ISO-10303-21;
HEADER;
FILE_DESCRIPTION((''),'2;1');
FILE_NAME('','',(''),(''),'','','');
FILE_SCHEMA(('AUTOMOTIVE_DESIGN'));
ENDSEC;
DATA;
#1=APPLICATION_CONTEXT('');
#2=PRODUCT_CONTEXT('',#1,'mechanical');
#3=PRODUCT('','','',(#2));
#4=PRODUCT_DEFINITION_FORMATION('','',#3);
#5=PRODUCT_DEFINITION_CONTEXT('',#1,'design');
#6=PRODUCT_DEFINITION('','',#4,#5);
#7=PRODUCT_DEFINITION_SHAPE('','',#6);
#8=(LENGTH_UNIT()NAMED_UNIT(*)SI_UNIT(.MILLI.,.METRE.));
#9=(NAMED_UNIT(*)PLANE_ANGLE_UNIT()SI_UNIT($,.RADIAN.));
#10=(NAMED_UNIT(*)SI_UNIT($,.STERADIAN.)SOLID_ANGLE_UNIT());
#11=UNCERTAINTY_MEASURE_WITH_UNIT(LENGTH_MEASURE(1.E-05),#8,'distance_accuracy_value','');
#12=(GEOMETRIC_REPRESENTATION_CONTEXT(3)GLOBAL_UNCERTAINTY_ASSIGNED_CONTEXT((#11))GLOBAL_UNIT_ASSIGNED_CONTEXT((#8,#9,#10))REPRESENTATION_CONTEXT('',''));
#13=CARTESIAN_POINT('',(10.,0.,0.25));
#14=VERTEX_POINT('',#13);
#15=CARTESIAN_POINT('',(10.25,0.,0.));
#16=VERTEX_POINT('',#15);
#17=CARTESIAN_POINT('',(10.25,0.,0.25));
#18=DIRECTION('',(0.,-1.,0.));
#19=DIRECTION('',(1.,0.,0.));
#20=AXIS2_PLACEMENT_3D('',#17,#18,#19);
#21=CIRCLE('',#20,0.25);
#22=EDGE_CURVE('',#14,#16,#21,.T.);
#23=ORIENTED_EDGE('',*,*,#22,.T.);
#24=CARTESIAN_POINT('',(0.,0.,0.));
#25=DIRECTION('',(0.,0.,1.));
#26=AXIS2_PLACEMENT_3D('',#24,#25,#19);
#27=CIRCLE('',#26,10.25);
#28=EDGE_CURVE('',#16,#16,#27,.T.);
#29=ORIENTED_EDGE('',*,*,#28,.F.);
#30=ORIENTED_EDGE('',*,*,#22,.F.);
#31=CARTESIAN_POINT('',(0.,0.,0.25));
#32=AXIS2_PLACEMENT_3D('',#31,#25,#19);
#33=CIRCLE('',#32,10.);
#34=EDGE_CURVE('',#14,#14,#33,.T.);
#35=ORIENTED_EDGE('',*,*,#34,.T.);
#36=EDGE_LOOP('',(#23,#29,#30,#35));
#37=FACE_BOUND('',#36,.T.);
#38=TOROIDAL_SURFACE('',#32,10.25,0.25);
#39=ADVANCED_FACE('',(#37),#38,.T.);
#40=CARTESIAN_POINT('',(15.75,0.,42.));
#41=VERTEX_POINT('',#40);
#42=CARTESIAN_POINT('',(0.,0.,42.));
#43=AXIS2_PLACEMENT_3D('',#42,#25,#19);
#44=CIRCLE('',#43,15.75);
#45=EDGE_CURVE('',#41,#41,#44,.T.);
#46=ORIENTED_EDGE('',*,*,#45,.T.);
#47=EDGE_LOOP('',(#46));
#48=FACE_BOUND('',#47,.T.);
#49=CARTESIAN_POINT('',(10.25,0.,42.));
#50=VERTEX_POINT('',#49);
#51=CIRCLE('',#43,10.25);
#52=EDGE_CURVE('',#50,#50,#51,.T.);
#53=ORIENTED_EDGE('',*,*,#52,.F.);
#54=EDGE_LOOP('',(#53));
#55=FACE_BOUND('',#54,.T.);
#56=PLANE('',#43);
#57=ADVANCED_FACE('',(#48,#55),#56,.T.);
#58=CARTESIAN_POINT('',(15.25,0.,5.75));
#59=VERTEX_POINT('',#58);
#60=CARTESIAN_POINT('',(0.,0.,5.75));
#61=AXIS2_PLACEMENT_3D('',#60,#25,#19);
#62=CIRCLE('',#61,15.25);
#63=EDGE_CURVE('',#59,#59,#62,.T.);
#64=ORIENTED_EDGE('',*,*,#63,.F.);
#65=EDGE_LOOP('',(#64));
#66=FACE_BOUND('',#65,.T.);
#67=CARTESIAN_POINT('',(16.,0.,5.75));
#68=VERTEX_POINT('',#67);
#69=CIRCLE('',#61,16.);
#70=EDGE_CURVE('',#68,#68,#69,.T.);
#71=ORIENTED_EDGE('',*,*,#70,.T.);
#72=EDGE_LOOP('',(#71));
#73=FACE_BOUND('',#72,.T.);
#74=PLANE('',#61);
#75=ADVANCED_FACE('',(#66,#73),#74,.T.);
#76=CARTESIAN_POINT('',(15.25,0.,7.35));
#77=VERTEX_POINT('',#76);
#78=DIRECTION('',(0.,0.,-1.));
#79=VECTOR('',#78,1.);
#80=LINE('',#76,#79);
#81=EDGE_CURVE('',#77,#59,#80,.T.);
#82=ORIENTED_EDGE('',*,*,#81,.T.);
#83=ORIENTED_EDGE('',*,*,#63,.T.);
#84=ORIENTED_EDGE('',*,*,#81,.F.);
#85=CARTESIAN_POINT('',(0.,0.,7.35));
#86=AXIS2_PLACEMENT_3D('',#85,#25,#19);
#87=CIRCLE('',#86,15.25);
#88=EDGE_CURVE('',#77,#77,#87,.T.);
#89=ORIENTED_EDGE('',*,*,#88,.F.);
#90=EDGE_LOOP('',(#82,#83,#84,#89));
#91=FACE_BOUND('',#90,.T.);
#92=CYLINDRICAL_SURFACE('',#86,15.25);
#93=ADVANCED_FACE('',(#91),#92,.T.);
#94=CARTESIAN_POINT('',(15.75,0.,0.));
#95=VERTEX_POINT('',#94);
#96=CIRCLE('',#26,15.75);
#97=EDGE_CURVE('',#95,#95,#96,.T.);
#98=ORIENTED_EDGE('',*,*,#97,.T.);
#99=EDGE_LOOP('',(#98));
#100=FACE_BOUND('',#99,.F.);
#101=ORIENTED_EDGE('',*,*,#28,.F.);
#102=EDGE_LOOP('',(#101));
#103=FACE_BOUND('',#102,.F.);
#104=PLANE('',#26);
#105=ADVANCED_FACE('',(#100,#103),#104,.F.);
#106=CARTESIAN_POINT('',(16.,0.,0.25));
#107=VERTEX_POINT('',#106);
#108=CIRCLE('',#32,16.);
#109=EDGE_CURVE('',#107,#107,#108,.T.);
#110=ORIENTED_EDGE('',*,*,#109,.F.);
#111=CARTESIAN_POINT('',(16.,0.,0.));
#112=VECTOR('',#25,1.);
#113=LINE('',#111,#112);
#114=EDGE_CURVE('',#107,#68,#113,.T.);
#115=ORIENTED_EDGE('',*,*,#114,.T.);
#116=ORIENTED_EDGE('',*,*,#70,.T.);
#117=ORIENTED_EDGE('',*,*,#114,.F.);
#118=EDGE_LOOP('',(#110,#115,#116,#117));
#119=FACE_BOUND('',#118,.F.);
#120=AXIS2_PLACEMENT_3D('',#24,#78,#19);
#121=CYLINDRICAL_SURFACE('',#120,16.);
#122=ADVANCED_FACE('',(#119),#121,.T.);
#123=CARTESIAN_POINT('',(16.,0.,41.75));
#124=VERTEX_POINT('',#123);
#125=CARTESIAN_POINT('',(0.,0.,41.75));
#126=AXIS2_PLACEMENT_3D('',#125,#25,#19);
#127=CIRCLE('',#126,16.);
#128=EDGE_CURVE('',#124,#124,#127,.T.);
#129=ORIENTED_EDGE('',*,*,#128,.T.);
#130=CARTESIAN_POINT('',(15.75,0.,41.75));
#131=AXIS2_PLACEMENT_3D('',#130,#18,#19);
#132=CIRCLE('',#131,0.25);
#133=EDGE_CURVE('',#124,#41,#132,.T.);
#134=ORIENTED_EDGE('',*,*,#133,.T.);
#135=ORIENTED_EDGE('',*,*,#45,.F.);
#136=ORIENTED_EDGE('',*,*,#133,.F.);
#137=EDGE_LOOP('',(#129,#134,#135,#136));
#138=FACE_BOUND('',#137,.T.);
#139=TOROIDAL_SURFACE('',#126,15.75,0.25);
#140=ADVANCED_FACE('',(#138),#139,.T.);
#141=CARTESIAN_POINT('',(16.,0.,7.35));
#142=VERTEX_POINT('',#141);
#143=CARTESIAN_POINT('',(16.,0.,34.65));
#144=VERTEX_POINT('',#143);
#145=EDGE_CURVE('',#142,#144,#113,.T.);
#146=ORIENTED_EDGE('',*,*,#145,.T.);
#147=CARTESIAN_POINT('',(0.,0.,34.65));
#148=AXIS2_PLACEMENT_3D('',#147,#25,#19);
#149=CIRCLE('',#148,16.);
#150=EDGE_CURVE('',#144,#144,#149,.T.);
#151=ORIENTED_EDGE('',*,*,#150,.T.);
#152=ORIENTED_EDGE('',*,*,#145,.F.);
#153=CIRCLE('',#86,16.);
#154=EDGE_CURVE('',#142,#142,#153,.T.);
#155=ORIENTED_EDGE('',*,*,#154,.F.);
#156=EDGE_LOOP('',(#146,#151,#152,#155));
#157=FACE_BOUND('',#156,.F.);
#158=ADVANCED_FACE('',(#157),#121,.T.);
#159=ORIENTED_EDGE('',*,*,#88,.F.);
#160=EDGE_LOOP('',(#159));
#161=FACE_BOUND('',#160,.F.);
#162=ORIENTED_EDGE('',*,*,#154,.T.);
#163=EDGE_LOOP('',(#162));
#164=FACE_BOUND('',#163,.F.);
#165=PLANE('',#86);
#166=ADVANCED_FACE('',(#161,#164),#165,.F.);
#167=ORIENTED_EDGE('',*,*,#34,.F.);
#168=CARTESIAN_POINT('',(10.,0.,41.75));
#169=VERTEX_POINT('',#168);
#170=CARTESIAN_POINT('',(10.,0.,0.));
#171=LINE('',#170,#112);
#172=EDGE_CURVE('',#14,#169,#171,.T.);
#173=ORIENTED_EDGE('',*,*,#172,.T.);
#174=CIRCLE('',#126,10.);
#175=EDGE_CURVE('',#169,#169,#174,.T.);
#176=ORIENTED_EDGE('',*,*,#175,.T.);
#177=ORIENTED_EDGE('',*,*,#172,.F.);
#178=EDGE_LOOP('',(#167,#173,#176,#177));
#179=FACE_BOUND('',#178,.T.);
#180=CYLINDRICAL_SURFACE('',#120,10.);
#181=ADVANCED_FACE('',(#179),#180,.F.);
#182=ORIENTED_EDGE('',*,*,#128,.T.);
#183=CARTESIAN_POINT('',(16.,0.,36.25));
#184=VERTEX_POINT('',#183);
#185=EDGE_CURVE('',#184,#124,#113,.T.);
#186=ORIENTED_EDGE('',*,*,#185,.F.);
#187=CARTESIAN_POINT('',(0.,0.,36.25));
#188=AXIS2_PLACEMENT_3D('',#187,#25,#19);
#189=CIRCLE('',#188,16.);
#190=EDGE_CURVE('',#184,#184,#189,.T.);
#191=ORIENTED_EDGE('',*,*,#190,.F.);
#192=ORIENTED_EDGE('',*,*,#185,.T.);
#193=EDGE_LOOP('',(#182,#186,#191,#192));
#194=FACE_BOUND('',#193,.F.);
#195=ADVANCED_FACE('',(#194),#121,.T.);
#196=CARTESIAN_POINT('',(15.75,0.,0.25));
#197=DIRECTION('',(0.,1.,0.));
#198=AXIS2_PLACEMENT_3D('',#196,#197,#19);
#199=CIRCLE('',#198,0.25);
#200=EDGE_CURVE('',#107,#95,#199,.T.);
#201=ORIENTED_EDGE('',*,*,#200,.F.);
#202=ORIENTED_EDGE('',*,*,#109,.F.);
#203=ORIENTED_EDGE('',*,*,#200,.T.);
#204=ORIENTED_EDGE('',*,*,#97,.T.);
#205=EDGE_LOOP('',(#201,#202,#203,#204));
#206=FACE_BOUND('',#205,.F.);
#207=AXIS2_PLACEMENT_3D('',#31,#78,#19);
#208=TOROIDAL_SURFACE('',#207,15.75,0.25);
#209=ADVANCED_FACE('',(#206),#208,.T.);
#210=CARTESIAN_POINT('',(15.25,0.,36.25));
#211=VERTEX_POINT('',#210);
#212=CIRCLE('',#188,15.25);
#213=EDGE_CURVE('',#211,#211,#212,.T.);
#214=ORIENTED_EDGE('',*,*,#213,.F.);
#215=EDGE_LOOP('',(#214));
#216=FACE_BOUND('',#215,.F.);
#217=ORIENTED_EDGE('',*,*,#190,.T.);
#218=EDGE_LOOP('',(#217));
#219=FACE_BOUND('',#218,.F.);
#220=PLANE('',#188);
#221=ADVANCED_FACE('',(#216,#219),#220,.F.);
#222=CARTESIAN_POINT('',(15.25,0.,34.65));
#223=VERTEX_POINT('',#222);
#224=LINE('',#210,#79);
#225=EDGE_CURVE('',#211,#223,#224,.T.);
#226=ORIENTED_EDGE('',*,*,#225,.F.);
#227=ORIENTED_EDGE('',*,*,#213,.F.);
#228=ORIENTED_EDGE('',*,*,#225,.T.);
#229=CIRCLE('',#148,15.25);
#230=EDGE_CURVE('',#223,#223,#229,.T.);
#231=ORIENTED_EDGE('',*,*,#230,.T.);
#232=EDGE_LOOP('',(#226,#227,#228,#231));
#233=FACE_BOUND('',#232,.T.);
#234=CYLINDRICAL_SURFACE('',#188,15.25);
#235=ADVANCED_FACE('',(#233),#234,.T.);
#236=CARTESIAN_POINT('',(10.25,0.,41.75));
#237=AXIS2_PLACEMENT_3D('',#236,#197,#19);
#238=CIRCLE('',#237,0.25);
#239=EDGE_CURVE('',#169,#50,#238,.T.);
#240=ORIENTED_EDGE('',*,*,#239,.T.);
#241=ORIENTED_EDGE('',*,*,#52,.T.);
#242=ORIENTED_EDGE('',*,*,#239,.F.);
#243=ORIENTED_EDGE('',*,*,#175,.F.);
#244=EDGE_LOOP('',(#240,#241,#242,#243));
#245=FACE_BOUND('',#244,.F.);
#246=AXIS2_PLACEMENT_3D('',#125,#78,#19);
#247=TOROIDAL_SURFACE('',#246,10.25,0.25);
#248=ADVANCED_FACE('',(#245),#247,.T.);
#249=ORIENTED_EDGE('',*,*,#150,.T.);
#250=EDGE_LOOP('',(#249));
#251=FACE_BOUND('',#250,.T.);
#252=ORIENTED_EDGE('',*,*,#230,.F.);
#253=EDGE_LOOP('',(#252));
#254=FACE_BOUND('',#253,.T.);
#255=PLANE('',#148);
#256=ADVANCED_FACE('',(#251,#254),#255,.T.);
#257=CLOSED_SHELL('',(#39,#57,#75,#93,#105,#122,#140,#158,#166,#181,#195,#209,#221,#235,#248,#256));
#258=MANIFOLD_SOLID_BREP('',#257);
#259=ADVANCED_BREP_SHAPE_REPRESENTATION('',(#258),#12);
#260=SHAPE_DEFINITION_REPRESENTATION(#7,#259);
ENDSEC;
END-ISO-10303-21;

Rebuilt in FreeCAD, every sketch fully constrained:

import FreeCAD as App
import Part
import Sketcher

V = App.Vector
Q = App.Units.Quantity


def edges_at(feature, points):
    """Names of the edges that pass closest to the given points."""
    edges = feature.Shape.Edges
    near = lambda p: min(range(len(edges)), key=lambda i: edges[i].distToShape(Part.Vertex(*p))[0])
    return sorted({f"Edge{near(p) + 1}" for p in points})

doc = App.newDocument("Part")
body = doc.addObject("PartDesign::Body", "Body")

sketch1 = doc.addObject("Sketcher::SketchObject", "Sketch")
body.addObject(sketch1)
sketch1.AttachmentSupport = (doc.XY_Plane, [""])
sketch1.MapMode = "FlatFace"
sketch1.addGeometry(Part.Circle(V(0, 0, 0), V(0, 0, 1), 16), False)
sketch1.addGeometry(Part.Circle(V(0, 0, 0), V(0, 0, 1), 10), False)
sketch1.addConstraint(Sketcher.Constraint("Coincident", 0, 3, -1, 1))
sketch1.addConstraint(Sketcher.Constraint("Coincident", 1, 3, -1, 1))
sketch1.addConstraint(Sketcher.Constraint("Diameter", 0, Q("32 mm")))
sketch1.addConstraint(Sketcher.Constraint("Diameter", 1, Q("20 mm")))
pad1 = doc.addObject("PartDesign::Pad", "Pad")
body.addObject(pad1)
pad1.Profile = sketch1
pad1.Length = 42
doc.recompute()

fillet = doc.addObject("PartDesign::Fillet", "Fillet")
body.addObject(fillet)
fillet.Base = (pad1, edges_at(pad1, [
    (-16, 0, 42),
    (-10, 0, 42),
    (-16, 0, 0),
    (-10, 0, 0),
]))
fillet.Radius = 0.25

sketch2 = doc.addObject("Sketcher::SketchObject", "Sketch001")
body.addObject(sketch2)
sketch2.AttachmentSupport = (doc.XY_Plane, [""])
sketch2.MapMode = "FlatFace"
sketch2.AttachmentOffset = App.Placement(V(0, 0, 36.25), App.Rotation())
sketch2.addGeometry(Part.Circle(V(0, 0, 0), V(0, 0, 1), 16), False)
sketch2.addGeometry(Part.Circle(V(0, 0, 0), V(0, 0, 1), 15), False)
sketch2.addConstraint(Sketcher.Constraint("Coincident", 0, 3, -1, 1))
sketch2.addConstraint(Sketcher.Constraint("Coincident", 1, 3, -1, 1))
sketch2.addConstraint(Sketcher.Constraint("Diameter", 0, Q("32 mm")))
sketch2.addConstraint(Sketcher.Constraint("Diameter", 1, Q("30.5 mm")))
pocket1 = doc.addObject("PartDesign::Pocket", "Pocket")
body.addObject(pocket1)
pocket1.Profile = sketch2
pocket1.Length = 1.6

sketch3 = doc.addObject("Sketcher::SketchObject", "Sketch002")
body.addObject(sketch3)
sketch3.AttachmentSupport = (doc.XY_Plane, [""])
sketch3.MapMode = "FlatFace"
sketch3.AttachmentOffset = App.Placement(V(0, 0, 7.35), App.Rotation())
sketch3.addGeometry(Part.Circle(V(0, 0, 0), V(0, 0, 1), 16), False)
sketch3.addGeometry(Part.Circle(V(0, 0, 0), V(0, 0, 1), 15), False)
sketch3.addConstraint(Sketcher.Constraint("Coincident", 0, 3, -1, 1))
sketch3.addConstraint(Sketcher.Constraint("Coincident", 1, 3, -1, 1))
sketch3.addConstraint(Sketcher.Constraint("Diameter", 0, Q("32 mm")))
sketch3.addConstraint(Sketcher.Constraint("Diameter", 1, Q("30.5 mm")))
pocket2 = doc.addObject("PartDesign::Pocket", "Pocket001")
body.addObject(pocket2)
pocket2.Profile = sketch3
pocket2.Length = 1.6

doc.recompute()
